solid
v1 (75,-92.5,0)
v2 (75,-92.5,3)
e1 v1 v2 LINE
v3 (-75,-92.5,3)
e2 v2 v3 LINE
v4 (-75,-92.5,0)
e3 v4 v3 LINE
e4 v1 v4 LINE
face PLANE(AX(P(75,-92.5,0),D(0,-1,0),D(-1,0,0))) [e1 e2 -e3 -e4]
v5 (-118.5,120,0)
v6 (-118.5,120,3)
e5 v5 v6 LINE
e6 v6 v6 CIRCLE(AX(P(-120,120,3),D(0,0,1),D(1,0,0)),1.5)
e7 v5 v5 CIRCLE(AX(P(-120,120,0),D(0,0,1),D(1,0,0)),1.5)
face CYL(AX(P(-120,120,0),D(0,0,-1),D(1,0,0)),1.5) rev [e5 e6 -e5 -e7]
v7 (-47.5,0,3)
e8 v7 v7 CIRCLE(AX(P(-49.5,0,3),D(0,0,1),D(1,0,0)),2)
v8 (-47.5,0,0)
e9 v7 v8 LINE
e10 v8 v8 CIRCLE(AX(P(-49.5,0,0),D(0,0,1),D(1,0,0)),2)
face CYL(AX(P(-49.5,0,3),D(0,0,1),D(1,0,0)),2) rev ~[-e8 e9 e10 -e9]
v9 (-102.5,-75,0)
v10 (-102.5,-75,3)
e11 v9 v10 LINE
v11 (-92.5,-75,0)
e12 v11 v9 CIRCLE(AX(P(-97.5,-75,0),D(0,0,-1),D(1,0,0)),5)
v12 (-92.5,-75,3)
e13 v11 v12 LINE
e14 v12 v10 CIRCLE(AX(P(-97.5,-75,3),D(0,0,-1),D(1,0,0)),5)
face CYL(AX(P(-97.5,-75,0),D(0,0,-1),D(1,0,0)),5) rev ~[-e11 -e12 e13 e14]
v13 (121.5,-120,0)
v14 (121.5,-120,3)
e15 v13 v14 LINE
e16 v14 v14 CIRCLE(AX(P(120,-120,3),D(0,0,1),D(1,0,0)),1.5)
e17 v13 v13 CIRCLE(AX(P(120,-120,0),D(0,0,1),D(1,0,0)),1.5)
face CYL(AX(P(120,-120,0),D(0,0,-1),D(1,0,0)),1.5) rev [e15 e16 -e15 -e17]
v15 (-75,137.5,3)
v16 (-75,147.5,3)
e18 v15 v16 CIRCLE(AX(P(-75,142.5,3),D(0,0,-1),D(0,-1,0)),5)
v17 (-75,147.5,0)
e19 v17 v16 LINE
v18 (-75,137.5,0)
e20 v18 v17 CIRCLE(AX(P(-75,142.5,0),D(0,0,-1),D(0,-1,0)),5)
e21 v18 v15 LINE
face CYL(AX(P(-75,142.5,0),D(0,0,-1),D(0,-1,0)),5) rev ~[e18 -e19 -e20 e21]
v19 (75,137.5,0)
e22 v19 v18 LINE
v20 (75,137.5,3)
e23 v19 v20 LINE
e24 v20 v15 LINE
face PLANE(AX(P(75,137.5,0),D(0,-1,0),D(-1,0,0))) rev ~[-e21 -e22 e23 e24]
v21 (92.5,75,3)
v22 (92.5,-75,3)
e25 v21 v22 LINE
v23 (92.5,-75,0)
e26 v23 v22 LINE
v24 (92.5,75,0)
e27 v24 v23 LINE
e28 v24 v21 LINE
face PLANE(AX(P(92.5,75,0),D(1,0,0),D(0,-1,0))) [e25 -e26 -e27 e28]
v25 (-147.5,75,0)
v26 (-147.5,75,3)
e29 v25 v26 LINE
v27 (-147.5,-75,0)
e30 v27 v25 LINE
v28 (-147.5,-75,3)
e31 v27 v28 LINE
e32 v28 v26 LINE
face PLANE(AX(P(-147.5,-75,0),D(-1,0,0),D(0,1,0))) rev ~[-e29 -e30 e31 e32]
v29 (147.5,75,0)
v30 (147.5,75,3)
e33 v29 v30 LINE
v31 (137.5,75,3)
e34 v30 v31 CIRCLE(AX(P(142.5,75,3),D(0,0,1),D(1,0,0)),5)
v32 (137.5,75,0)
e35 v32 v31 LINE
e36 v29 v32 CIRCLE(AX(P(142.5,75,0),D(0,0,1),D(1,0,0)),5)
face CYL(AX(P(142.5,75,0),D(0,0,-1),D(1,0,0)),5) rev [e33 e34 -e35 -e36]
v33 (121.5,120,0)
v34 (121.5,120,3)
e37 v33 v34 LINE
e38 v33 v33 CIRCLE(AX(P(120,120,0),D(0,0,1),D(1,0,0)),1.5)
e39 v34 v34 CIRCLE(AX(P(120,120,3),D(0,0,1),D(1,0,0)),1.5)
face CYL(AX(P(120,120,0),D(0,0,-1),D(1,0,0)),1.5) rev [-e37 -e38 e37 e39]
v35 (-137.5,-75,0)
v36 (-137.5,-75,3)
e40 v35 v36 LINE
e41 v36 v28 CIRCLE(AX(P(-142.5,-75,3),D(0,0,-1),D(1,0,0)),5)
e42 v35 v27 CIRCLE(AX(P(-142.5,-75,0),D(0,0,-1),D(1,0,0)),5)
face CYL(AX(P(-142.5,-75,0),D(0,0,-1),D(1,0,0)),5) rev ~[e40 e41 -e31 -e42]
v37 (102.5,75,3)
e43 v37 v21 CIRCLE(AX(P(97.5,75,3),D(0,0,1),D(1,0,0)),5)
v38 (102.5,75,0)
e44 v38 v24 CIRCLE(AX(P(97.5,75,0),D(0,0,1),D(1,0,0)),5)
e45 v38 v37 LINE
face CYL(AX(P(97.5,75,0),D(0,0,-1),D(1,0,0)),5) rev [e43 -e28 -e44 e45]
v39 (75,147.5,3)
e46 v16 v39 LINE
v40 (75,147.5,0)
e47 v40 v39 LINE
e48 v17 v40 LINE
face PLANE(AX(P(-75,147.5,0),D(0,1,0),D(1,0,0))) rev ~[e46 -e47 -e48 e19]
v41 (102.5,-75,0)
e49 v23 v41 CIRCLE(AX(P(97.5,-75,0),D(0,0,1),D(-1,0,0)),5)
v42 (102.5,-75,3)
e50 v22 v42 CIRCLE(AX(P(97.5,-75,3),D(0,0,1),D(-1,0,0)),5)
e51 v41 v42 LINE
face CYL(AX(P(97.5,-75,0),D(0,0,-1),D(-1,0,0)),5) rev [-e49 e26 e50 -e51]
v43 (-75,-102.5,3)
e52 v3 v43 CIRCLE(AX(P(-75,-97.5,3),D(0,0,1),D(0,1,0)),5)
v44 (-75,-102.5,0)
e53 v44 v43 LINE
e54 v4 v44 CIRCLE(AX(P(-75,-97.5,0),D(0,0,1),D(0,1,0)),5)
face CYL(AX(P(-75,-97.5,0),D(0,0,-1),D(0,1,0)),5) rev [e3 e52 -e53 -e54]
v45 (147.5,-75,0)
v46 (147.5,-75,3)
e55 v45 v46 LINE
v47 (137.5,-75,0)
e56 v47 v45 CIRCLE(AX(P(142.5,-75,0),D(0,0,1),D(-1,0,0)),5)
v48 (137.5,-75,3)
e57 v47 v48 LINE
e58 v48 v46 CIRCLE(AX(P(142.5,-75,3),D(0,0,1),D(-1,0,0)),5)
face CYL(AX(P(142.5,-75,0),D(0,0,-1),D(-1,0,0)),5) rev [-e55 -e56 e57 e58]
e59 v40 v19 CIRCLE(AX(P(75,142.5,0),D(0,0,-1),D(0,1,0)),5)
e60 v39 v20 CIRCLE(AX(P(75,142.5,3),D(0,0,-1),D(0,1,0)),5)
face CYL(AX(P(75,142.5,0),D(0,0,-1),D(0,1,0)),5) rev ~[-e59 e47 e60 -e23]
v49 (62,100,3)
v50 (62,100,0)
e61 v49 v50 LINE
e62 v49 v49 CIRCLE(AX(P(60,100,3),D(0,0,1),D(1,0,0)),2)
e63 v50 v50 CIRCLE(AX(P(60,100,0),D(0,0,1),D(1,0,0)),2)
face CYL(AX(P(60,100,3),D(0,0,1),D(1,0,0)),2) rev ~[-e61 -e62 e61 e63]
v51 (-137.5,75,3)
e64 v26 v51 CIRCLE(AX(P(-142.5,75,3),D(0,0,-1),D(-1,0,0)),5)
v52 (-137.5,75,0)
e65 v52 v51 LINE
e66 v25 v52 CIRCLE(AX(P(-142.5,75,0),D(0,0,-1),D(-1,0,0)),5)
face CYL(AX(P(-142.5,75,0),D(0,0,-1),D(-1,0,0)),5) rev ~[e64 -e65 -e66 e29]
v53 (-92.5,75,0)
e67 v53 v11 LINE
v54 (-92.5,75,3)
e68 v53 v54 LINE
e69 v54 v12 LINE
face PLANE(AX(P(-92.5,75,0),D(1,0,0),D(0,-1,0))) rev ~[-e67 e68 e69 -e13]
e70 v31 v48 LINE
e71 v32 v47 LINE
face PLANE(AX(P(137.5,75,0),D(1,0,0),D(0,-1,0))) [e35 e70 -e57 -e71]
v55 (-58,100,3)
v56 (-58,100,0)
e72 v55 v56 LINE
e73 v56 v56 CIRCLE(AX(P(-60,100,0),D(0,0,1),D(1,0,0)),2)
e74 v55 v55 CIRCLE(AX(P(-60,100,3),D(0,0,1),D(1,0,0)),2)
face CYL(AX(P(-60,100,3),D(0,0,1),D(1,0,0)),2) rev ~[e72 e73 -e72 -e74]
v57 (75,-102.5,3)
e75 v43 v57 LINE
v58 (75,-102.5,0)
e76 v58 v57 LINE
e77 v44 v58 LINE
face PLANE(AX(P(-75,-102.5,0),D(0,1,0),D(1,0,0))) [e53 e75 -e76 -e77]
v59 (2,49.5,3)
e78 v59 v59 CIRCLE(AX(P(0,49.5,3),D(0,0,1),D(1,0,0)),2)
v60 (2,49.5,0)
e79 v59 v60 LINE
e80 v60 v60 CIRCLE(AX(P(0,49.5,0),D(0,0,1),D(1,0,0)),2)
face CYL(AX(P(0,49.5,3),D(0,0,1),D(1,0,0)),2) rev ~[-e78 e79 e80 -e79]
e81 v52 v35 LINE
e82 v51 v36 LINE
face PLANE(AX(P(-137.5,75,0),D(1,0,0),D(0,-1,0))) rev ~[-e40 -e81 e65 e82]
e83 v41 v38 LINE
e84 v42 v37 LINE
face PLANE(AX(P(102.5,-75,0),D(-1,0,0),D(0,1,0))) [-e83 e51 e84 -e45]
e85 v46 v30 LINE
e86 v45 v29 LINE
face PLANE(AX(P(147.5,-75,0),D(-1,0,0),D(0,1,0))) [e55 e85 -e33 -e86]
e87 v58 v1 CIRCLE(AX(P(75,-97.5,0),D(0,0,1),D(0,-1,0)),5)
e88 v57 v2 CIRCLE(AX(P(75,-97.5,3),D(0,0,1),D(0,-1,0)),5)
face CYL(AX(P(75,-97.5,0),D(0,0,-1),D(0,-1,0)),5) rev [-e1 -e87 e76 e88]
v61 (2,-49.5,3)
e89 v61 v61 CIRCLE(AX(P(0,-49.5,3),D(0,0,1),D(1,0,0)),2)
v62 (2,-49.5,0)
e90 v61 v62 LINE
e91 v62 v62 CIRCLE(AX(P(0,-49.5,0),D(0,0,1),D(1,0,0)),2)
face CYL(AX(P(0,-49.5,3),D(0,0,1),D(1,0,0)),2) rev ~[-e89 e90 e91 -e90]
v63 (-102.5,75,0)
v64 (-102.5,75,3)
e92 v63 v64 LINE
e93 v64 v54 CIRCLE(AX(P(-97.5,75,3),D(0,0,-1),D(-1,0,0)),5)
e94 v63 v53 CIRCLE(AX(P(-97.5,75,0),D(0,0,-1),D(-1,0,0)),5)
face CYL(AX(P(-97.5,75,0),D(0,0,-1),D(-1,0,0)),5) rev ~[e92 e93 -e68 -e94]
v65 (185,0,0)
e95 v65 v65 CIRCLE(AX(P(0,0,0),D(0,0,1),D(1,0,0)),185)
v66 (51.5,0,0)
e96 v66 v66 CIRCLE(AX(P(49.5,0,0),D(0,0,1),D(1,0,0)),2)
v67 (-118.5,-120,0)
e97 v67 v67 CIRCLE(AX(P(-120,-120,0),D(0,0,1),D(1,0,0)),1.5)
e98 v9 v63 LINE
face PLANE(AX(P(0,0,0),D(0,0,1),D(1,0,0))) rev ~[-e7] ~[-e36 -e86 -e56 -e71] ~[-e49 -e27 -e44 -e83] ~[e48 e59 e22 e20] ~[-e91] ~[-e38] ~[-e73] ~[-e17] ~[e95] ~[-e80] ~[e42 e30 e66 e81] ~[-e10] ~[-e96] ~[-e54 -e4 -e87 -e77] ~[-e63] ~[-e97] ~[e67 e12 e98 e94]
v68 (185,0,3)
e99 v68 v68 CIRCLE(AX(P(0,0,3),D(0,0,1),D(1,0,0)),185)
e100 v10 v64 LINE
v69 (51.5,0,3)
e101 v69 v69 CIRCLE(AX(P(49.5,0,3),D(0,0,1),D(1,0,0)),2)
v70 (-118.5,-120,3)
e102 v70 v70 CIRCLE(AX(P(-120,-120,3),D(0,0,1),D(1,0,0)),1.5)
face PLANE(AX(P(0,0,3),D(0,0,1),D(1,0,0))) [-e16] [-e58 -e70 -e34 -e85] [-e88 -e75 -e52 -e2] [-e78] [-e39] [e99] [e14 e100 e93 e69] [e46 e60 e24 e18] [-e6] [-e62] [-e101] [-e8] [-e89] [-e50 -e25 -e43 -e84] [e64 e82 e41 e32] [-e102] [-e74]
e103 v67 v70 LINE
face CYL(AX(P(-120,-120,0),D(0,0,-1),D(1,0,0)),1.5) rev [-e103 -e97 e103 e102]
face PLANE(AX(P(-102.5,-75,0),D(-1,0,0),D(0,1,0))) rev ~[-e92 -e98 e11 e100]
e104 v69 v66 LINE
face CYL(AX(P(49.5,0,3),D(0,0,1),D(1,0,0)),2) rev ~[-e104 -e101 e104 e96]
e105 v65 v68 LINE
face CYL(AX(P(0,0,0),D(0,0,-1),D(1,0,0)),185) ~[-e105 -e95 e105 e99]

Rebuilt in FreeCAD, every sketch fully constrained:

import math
import FreeCAD as App
import Part
import Sketcher

doc = App.newDocument("Part")
body = doc.addObject("PartDesign::Body", "Body")

sketch1 = body.newObject("Sketcher::SketchObject", "Sketch")
sketch1.AttachmentSupport = (doc.getObject("XY_Plane"), [""])
sketch1.MapMode = "FlatFace"
sketch1.addGeometry([
    Part.Circle(App.Vector(0, 0, 0), App.Vector(0, 0, 1), 185),
    Part.Circle(App.Vector(-120, -120, 0), App.Vector(0, 0, 1), 1.5),
    Part.ArcOfCircle(Part.Circle(App.Vector(-142.5, -75, 0), App.Vector(0, 0, 1), 5), math.radians(180), math.radians(360)),
    Part.LineSegment(App.Vector(-147.5, -75, 0), App.Vector(-147.5, 75, 0)),
    Part.ArcOfCircle(Part.Circle(App.Vector(-142.5, 75, 0), App.Vector(0, 0, 1), 5), math.radians(0), math.radians(180)),
    Part.LineSegment(App.Vector(-137.5, 75, 0), App.Vector(-137.5, -75, 0)),
    Part.ArcOfCircle(Part.Circle(App.Vector(-97.5, -75, 0), App.Vector(0, 0, 1), 5), math.radians(180), math.radians(360)),
    Part.LineSegment(App.Vector(-102.5, -75, 0), App.Vector(-102.5, 75, 0)),
    Part.ArcOfCircle(Part.Circle(App.Vector(-97.5, 75, 0), App.Vector(0, 0, 1), 5), math.radians(0), math.radians(180)),
    Part.LineSegment(App.Vector(-92.5, 75, 0), App.Vector(-92.5, -75, 0)),
    Part.LineSegment(App.Vector(75, -102.5, 0), App.Vector(-75, -102.5, 0)),
    Part.ArcOfCircle(Part.Circle(App.Vector(-75, -97.5, 0), App.Vector(0, 0, 1), 5), math.radians(90), math.radians(270)),
    Part.LineSegment(App.Vector(-75, -92.5, 0), App.Vector(75, -92.5, 0)),
    Part.ArcOfCircle(Part.Circle(App.Vector(75, -97.5, 0), App.Vector(0, 0, 1), 5), math.radians(-90), math.radians(90)),
    Part.Circle(App.Vector(120, -120, 0), App.Vector(0, 0, 1), 1.5),
    Part.LineSegment(App.Vector(102.5, 75, 0), App.Vector(102.5, -75, 0)),
    Part.ArcOfCircle(Part.Circle(App.Vector(97.5, -75, 0), App.Vector(0, 0, 1), 5), math.radians(180), math.radians(360)),
    Part.LineSegment(App.Vector(92.5, -75, 0), App.Vector(92.5, 75, 0)),
    Part.ArcOfCircle(Part.Circle(App.Vector(97.5, 75, 0), App.Vector(0, 0, 1), 5), math.radians(0), math.radians(180)),
    Part.LineSegment(App.Vector(147.5, 75, 0), App.Vector(147.5, -75, 0)),
    Part.ArcOfCircle(Part.Circle(App.Vector(142.5, -75, 0), App.Vector(0, 0, 1), 5), math.radians(180), math.radians(360)),
    Part.LineSegment(App.Vector(137.5, -75, 0), App.Vector(137.5, 75, 0)),
    Part.ArcOfCircle(Part.Circle(App.Vector(142.5, 75, 0), App.Vector(0, 0, 1), 5), math.radians(0), math.radians(180)),
    Part.Circle(App.Vector(-120, 120, 0), App.Vector(0, 0, 1), 1.5),
    Part.ArcOfCircle(Part.Circle(App.Vector(-75, 142.5, 0), App.Vector(0, 0, 1), 5), math.radians(90), math.radians(270)),
    Part.LineSegment(App.Vector(-75, 147.5, 0), App.Vector(75, 147.5, 0)),
    Part.ArcOfCircle(Part.Circle(App.Vector(75, 142.5, 0), App.Vector(0, 0, 1), 5), math.radians(-90), math.radians(90)),
    Part.LineSegment(App.Vector(75, 137.5, 0), App.Vector(-75, 137.5, 0)),
    Part.Circle(App.Vector(120, 120, 0), App.Vector(0, 0, 1), 1.5),
], False)
sketch1.addConstraint([
    Sketcher.Constraint("Tangent", 2, 1, 3, 1),
    Sketcher.Constraint("Tangent", 3, 2, 4, 2),
    Sketcher.Constraint("Tangent", 4, 1, 5, 1),
    Sketcher.Constraint("Tangent", 5, 2, 2, 2),
    Sketcher.Constraint("Tangent", 6, 1, 7, 1),
    Sketcher.Constraint("Tangent", 7, 2, 8, 2),
    Sketcher.Constraint("Tangent", 8, 1, 9, 1),
    Sketcher.Constraint("Tangent", 9, 2, 6, 2),
    Sketcher.Constraint("Tangent", 10, 2, 11, 2),
    Sketcher.Constraint("Tangent", 11, 1, 12, 1),
    Sketcher.Constraint("Tangent", 12, 2, 13, 2),
    Sketcher.Constraint("Tangent", 13, 1, 10, 1),
    Sketcher.Constraint("Tangent", 15, 2, 16, 2),
    Sketcher.Constraint("Tangent", 16, 1, 17, 1),
    Sketcher.Constraint("Tangent", 17, 2, 18, 2),
    Sketcher.Constraint("Tangent", 18, 1, 15, 1),
    Sketcher.Constraint("Tangent", 19, 2, 20, 2),
    Sketcher.Constraint("Tangent", 20, 1, 21, 1),
    Sketcher.Constraint("Tangent", 21, 2, 22, 2),
    Sketcher.Constraint("Tangent", 22, 1, 19, 1),
    Sketcher.Constraint("Tangent", 24, 1, 25, 1),
    Sketcher.Constraint("Tangent", 25, 2, 26, 2),
    Sketcher.Constraint("Tangent", 26, 1, 27, 1),
    Sketcher.Constraint("Tangent", 27, 2, 24, 2),
    Sketcher.Constraint("Vertical", 3),
    Sketcher.Constraint("Vertical", 5),
    Sketcher.Constraint("Vertical", 7),
    Sketcher.Constraint("Vertical", 9),
    Sketcher.Constraint("Horizontal", 10),
    Sketcher.Constraint("Horizontal", 12),
    Sketcher.Constraint("Vertical", 15),
    Sketcher.Constraint("Vertical", 17),
    Sketcher.Constraint("Vertical", 19),
    Sketcher.Constraint("Vertical", 21),
    Sketcher.Constraint("Horizontal", 25),
    Sketcher.Constraint("Horizontal", 27),
    Sketcher.Constraint("Coincident", 0, 3, -1, 1),
    Sketcher.Constraint("Equal", 4, 6),
    Sketcher.Constraint("Equal", 8, 11),
    Sketcher.Constraint("Equal", 1, 14),
    Sketcher.Constraint("Equal", 13, 16),
    Sketcher.Constraint("Equal", 18, 20),
    Sketcher.Constraint("Equal", 14, 23),
    Sketcher.Constraint("Equal", 22, 24),
    Sketcher.Constraint("Equal", 23, 28),
    Sketcher.Constraint("Symmetric", 8, 3, 16, 3, -1, 1),
    Sketcher.Constraint("Symmetric", 4, 3, 20, 3, -1, 1),
    Sketcher.Constraint("Symmetric", 14, 3, 23, 3, -1, 1),
    Sketcher.Constraint("Symmetric", 1, 3, 28, 3, -1, 1),
    Sketcher.Constraint("Symmetric", 1, 3, 14, 3, -2),
    Sketcher.Constraint("Horizontal", 2, 3, 6, 3),
    Sketcher.Constraint("Horizontal", 4, 3, 8, 3),
    Sketcher.Constraint("Horizontal", 6, 3, 16, 3),
    Sketcher.Constraint("Horizontal", 8, 3, 18, 3),
    Sketcher.Constraint("Horizontal", 18, 3, 22, 3),
    Sketcher.Constraint("Vertical", 11, 3, 24, 3),
    Sketcher.Constraint("Vertical", 13, 3, 26, 3),
    Sketcher.Constraint("Equal", 27, 3),
    Sketcher.Constraint("Diameter", 0, 370.0),
    Sketcher.Constraint("Diameter", 1, 3.0),
    Sketcher.Constraint("Radius", 2, 5.0),
    Sketcher.Constraint("DistanceX", 10, 2, 10, 1, 150.0),
    Sketcher.Constraint("DistanceX", 1, 3, -1, 1, 120.0),
    Sketcher.Constraint("DistanceY", 1, 3, -1, 1, 120.0),
    Sketcher.Constraint("DistanceX", 11, 3, -1, 1, 75.0),
    Sketcher.Constraint("DistanceX", 2, 3, 6, 3, 45.0),
    Sketcher.Constraint("DistanceX", 6, 3, 16, 3, 195.0),
    Sketcher.Constraint("DistanceY", 11, 3, -1, 1, 97.5),
    Sketcher.Constraint("DistanceY", -1, 1, 24, 3, 142.5),
])
pad1 = body.newObject("PartDesign::Pad", "Pad")
pad1.Profile = sketch1
pad1.Length = 3

sketch2 = body.newObject("Sketcher::SketchObject", "Sketch001")
sketch2.AttachmentSupport = (doc.getObject("XY_Plane"), [""])
sketch2.MapMode = "FlatFace"
sketch2.AttachmentOffset = App.Placement(App.Vector(0, 0, 3), App.Rotation())
sketch2.addGeometry([
    Part.Circle(App.Vector(0, 49.5, 0), App.Vector(0, 0, 1), 2),
    Part.Circle(App.Vector(0, -49.5, 0), App.Vector(0, 0, 1), 2),
    Part.Circle(App.Vector(49.5, 0, 0), App.Vector(0, 0, 1), 2),
    Part.Circle(App.Vector(-49.5, 0, 0), App.Vector(0, 0, 1), 2),
    Part.Circle(App.Vector(60, 100, 0), App.Vector(0, 0, 1), 2),
    Part.Circle(App.Vector(-60, 100, 0), App.Vector(0, 0, 1), 2),
], False)
sketch2.addConstraint([
    Sketcher.Constraint("Equal", 0, 1),
    Sketcher.Constraint("Equal", 1, 2),
    Sketcher.Constraint("Equal", 2, 3),
    Sketcher.Constraint("Equal", 3, 4),
    Sketcher.Constraint("Equal", 4, 5),
    Sketcher.Constraint("Symmetric", 0, 3, 1, 3, -1, 1),
    Sketcher.Constraint("Symmetric", 2, 3, 3, 3, -1, 1),
    Sketcher.Constraint("Symmetric", 4, 3, 5, 3, -2),
    Sketcher.Constraint("PointOnObject", 0, 3, -2),
    Sketcher.Constraint("PointOnObject", 2, 3, -1),
    Sketcher.Constraint("Diameter", 0, 4.0),
    Sketcher.Constraint("DistanceX", -1, 1, 4, 3, 60.0),
    Sketcher.Constraint("DistanceY", -1, 1, 4, 3, 100.0),
    Sketcher.Constraint("DistanceY", 1, 3, 0, 3, 99.0),
    Sketcher.Constraint("DistanceX", 3, 3, 2, 3, 99.0),
])
pocket1 = body.newObject("PartDesign::Pocket", "Pocket")
pocket1.Profile = sketch2
pocket1.Length = 10

doc.recompute()
